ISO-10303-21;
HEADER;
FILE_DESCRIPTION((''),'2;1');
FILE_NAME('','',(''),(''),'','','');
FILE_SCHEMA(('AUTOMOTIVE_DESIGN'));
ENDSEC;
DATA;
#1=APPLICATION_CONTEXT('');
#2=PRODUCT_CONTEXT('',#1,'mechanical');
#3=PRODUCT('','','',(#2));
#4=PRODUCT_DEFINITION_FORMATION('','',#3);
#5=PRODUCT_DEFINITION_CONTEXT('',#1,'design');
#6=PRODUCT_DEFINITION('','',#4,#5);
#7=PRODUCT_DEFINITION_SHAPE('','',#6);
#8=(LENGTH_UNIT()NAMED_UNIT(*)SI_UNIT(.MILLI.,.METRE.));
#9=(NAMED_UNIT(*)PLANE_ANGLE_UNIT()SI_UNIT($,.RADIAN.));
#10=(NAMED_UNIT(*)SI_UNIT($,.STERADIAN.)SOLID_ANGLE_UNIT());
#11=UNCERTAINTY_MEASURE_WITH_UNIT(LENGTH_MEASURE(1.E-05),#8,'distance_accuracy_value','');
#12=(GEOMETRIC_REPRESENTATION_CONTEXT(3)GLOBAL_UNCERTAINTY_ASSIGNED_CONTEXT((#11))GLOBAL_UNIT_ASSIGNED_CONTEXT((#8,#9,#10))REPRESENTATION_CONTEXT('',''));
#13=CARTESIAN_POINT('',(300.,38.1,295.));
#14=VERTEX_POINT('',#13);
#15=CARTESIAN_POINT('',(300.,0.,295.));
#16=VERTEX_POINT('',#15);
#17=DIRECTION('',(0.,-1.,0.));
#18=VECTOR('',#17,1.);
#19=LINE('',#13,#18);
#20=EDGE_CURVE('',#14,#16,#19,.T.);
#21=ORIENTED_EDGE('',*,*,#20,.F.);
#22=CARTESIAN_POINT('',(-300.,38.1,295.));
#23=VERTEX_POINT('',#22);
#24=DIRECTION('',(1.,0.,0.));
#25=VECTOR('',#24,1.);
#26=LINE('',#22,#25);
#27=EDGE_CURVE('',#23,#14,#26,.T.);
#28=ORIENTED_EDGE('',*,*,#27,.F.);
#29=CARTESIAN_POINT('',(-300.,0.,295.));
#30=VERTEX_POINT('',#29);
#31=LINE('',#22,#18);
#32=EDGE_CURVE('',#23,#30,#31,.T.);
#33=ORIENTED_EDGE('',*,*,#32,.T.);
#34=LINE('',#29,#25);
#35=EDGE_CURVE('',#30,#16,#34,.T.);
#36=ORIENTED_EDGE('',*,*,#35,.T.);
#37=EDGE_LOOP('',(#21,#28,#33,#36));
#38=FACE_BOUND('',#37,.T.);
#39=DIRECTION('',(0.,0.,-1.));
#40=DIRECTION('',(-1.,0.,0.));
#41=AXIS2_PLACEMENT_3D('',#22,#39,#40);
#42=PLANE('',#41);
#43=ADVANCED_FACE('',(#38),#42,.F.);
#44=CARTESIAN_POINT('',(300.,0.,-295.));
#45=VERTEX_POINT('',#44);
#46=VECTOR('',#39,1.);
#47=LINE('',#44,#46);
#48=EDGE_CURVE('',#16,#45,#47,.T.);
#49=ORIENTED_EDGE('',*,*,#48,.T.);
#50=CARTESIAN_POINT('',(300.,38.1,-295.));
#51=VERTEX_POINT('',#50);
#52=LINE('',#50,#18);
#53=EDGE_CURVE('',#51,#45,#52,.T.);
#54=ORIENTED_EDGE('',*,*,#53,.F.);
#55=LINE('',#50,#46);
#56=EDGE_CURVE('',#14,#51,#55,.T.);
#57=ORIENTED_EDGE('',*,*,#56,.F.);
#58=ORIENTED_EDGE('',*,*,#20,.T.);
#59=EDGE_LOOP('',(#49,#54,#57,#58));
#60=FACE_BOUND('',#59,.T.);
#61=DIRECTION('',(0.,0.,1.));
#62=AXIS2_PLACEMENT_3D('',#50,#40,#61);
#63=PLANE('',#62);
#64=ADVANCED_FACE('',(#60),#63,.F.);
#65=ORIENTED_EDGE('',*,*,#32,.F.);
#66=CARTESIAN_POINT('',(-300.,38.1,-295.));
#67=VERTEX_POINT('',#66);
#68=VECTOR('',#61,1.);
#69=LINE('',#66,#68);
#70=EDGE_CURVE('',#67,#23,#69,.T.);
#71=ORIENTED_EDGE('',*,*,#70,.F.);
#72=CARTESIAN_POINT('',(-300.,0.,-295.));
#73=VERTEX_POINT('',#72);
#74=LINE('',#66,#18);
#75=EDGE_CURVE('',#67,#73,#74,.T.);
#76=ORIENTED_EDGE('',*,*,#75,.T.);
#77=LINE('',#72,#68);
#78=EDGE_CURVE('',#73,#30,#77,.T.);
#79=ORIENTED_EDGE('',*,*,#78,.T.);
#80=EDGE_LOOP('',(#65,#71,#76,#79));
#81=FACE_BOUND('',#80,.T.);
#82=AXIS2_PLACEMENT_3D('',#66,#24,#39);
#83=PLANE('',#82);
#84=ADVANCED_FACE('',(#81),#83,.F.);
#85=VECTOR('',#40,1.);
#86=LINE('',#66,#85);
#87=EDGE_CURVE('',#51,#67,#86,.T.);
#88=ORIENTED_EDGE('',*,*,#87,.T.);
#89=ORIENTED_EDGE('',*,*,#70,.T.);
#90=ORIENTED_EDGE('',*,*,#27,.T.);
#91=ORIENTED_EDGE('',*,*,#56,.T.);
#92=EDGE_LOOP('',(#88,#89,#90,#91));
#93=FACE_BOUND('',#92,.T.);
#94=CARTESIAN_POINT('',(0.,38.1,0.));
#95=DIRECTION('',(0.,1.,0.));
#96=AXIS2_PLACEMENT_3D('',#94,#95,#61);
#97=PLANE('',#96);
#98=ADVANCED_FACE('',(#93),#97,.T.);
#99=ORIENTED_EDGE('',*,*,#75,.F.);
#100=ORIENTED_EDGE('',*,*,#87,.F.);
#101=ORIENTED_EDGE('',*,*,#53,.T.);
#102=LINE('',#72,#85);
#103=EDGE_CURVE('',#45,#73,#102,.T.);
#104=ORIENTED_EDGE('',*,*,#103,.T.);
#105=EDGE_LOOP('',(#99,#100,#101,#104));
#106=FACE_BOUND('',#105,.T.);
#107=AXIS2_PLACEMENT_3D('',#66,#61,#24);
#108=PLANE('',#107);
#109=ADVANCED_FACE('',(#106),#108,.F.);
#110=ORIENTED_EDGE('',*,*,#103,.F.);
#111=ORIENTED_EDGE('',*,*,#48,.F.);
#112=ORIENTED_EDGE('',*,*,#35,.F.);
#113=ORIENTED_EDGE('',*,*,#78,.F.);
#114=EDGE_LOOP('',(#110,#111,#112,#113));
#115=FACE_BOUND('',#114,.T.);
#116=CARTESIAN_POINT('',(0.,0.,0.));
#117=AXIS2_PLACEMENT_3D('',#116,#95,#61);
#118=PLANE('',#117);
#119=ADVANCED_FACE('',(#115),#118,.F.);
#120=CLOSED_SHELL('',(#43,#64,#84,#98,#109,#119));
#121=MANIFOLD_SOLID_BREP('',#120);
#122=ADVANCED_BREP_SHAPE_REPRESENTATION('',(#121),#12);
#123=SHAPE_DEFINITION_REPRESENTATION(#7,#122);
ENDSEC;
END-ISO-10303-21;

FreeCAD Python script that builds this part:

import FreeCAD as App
import Part
import Sketcher
from FreeCAD import Vector
Q = App.Units.Quantity


def add_polygon(sketch, points):
    """Adds a closed chain of lines whose ends are joined by coincident constraints."""
    first, n = sketch.GeometryCount, len(points)
    for a, b in zip(points, points[1:] + points[:1]):
        sketch.addGeometry(Part.LineSegment(App.Vector(*a, 0), App.Vector(*b, 0)), False)
    for i in range(n):
        sketch.addConstraint(Sketcher.Constraint("Coincident", first + i, 2, first + (i + 1) % n, 1))

doc = App.newDocument("Part")
body = doc.addObject("PartDesign::Body", "Body")

sketch1 = body.newObject("Sketcher::SketchObject", "Sketch")
sketch1.AttachmentSupport = (doc.getObject("XZ_Plane"), [""])
sketch1.MapMode = "FlatFace"
add_polygon(sketch1, [(-300, -295), (-300, 295), (300, 295), (300, -295)])
sketch1.addConstraint(Sketcher.Constraint("Vertical", 0))
sketch1.addConstraint(Sketcher.Constraint("Horizontal", 1))
sketch1.addConstraint(Sketcher.Constraint("Vertical", 2))
sketch1.addConstraint(Sketcher.Constraint("Horizontal", 3))
sketch1.addConstraint(Sketcher.Constraint("Symmetric", 0, 2, 2, 2, -1, 1))
sketch1.addConstraint(Sketcher.Constraint("DistanceX", 1, 1, 1, 2, Q("600 mm")))
sketch1.addConstraint(Sketcher.Constraint("DistanceY", 0, 1, 0, 2, Q("590 mm")))
pad1 = body.newObject("PartDesign::Pad", "Pad")
pad1.Profile = sketch1
pad1.Length = 38.1
pad1.Reversed = True

doc.recompute()
